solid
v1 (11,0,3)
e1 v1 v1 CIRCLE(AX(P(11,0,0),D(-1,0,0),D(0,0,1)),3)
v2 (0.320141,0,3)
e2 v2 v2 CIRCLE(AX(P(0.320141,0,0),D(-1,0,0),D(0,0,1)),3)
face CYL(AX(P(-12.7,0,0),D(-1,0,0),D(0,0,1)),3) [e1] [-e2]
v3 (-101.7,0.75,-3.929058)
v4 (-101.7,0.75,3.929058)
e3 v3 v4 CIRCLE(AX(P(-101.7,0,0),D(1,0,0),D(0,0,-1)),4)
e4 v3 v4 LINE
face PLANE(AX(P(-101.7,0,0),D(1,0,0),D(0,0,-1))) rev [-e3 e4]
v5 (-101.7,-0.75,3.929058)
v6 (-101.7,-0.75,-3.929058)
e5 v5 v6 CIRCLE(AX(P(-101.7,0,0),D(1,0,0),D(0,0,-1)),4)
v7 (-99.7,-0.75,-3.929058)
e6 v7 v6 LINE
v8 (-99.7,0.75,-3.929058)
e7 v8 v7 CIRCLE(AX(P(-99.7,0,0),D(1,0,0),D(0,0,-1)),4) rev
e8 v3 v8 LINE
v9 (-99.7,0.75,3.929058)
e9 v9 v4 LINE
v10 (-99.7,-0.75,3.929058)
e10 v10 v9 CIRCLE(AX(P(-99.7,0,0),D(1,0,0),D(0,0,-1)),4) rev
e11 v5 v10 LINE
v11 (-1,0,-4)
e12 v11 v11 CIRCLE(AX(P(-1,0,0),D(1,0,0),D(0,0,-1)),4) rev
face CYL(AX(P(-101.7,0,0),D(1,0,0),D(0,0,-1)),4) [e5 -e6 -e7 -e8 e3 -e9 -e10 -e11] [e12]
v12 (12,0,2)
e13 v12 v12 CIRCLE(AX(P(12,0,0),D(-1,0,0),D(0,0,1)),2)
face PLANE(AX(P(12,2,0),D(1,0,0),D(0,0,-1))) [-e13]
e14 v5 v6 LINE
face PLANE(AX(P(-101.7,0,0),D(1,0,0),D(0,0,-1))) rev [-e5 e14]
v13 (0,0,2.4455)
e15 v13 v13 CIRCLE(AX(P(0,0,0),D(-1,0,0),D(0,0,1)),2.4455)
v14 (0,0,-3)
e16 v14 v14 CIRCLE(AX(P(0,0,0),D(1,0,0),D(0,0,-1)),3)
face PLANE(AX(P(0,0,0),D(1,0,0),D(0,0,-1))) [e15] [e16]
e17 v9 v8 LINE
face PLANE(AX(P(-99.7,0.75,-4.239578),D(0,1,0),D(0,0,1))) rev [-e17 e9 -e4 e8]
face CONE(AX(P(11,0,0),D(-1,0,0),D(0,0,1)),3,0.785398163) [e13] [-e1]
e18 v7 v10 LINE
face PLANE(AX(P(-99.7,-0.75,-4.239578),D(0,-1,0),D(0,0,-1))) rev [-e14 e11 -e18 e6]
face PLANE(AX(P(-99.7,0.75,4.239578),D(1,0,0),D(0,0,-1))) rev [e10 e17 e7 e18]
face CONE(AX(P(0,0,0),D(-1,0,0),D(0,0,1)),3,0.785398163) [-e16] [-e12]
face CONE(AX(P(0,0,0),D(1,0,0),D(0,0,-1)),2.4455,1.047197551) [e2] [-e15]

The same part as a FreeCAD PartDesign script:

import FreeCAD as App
import Part
import Sketcher

V = App.Vector
Q = App.Units.Quantity


def edges_at(feature, points):
    """Names of the edges that pass closest to the given points."""
    edges = feature.Shape.Edges
    near = lambda p: min(range(len(edges)), key=lambda i: edges[i].distToShape(Part.Vertex(*p))[0])
    return sorted({f"Edge{near(p) + 1}" for p in points})

doc = App.newDocument("Part")
params = doc.addObject("Spreadsheet::Sheet", "Params")
for row, (alias, value) in enumerate([
    ("sketch1_width", "12 mm"),
    ("sketch1_height", "2 mm"),
    ("revolution_angle", "360 deg"),
    ("sketch2_diameter", "8 mm"),
    ("pad1_length", "101.7 mm"),
    ("chamfer_size", "1 mm"),
    ("sketch3_width", "1.5 mm"),
    ("pocket1_length", "2 mm"),
], start=1):
    params.set(f"A{row}", alias)
    params.set(f"B{row}", "=" + value)
    params.setAlias(f"B{row}", alias)

body = doc.addObject("PartDesign::Body", "Body")

# Sketch on XY plane
sketch1 = body.newObject("Sketcher::SketchObject", "Sketch")
sketch1.AttachmentSupport = (doc.getObject("XY_Plane"), [""])
sketch1.MapMode = "FlatFace"
sketch1.addGeometry([
    Part.LineSegment(V(0, 2.4455, 0), V(0, 0, 0)),  # 0
    Part.LineSegment(V(0, 0, 0), V(12, 0, 0)),  # 1
    Part.LineSegment(V(12, 0, 0), V(12, 2, 0)),  # 2
    Part.LineSegment(V(12, 2, 0), V(11, 3, 0)),  # 3
    Part.LineSegment(V(11, 3, 0), V(0.320141, 3, 0)),  # 4
    Part.LineSegment(V(0.320141, 3, 0), V(0, 2.4455, 0)),  # 5
], False)
sketch1.addConstraint([
    Sketcher.Constraint("Coincident", 0, 2, 1, 1),
    Sketcher.Constraint("Coincident", 1, 2, 2, 1),
    Sketcher.Constraint("Coincident", 2, 2, 3, 1),
    Sketcher.Constraint("Coincident", 3, 2, 4, 1),
    Sketcher.Constraint("Coincident", 4, 2, 5, 1),
    Sketcher.Constraint("Coincident", 5, 2, 0, 1),
    Sketcher.Constraint("Vertical", 0),
    Sketcher.Constraint("Horizontal", 1),
    Sketcher.Constraint("Vertical", 2),
    Sketcher.Constraint("Horizontal", 4),
    Sketcher.Constraint("Coincident", 0, 2, -1, 1),
    Sketcher.Constraint("DistanceX", 1, 1, 1, 2, 12.0),
    Sketcher.Constraint("DistanceY", 2, 1, 2, 2, 2.0),
    Sketcher.Constraint("Angle", 3, Q("135 deg")),
    Sketcher.Constraint("Angle", 5, Q("-120 deg")),
    Sketcher.Constraint("DistanceX", -1, 1, 3, 2, 11.0),
    Sketcher.Constraint("DistanceY", 0, 2, 0, 1, 2.4455),
])
sketch1.setExpression("Constraints[11]", "Params.sketch1_width")
sketch1.setExpression("Constraints[12]", "Params.sketch1_height")
revolution = body.newObject("PartDesign::Revolution", "Revolution")
revolution.Profile = sketch1
revolution.ReferenceAxis = (sketch1, ["H_Axis"])
revolution.setExpression("Angle", "Params.revolution_angle")

# Sketch on YZ plane
sketch2 = body.newObject("Sketcher::SketchObject", "Sketch001")
sketch2.AttachmentSupport = (doc.getObject("YZ_Plane"), [""])
sketch2.MapMode = "FlatFace"
sketch2.addGeometry(Part.Circle(V(0, 0, 0), V(0, 0, 1), 4), False)
sketch2.addConstraint([
    Sketcher.Constraint("Coincident", 0, 3, -1, 1),
    Sketcher.Constraint("Diameter", 0, 8.0),
])
sketch2.setExpression("Constraints[1]", "Params.sketch2_diameter")
pad1 = body.newObject("PartDesign::Pad", "Pad")
pad1.Profile = sketch2
pad1.setExpression("Length", "Params.pad1_length")
pad1.Reversed = True
doc.recompute()

chamfer = body.newObject("PartDesign::Chamfer", "Chamfer")
chamfer.Base = (pad1, edges_at(pad1, [(0, 0, 4)]))
chamfer.setExpression("Size", "Params.chamfer_size")

# Sketch on YZ plane
sketch3 = body.newObject("Sketcher::SketchObject", "Sketch002")
sketch3.AttachmentSupport = (doc.getObject("YZ_Plane"), [""])
sketch3.MapMode = "FlatFace"
sketch3.AttachmentOffset = App.Placement(V(0, 0, -101.7), App.Rotation())
sketch3.addGeometry([
    Part.LineSegment(V(0.75, -4.239578, 0), V(-0.75, -4.239578, 0)),
    Part.LineSegment(V(-0.75, -4.239578, 0), V(-0.75, 4.239578, 0)),
    Part.LineSegment(V(-0.75, 4.239578, 0), V(0.75, 4.239578, 0)),
    Part.LineSegment(V(0.75, 4.239578, 0), V(0.75, -4.239578, 0)),
], False)
sketch3.addConstraint([
    Sketcher.Constraint("Coincident", 0, 2, 1, 1),
    Sketcher.Constraint("Coincident", 1, 2, 2, 1),
    Sketcher.Constraint("Coincident", 2, 2, 3, 1),
    Sketcher.Constraint("Coincident", 3, 2, 0, 1),
    Sketcher.Constraint("Horizontal", 0),
    Sketcher.Constraint("Vertical", 1),
    Sketcher.Constraint("Horizontal", 2),
    Sketcher.Constraint("Vertical", 3),
    Sketcher.Constraint("Symmetric", 0, 2, 2, 2, -1, 1),
    Sketcher.Constraint("DistanceX", 0, 2, 0, 1, 1.5),
    Sketcher.Constraint("DistanceY", 1, 1, 1, 2, 8.479157),
])
sketch3.setExpression("Constraints[9]", "Params.sketch3_width")
pocket1 = body.newObject("PartDesign::Pocket", "Pocket")
pocket1.Profile = sketch3
pocket1.setExpression("Length", "Params.pocket1_length")
pocket1.Reversed = True

doc.recompute()
